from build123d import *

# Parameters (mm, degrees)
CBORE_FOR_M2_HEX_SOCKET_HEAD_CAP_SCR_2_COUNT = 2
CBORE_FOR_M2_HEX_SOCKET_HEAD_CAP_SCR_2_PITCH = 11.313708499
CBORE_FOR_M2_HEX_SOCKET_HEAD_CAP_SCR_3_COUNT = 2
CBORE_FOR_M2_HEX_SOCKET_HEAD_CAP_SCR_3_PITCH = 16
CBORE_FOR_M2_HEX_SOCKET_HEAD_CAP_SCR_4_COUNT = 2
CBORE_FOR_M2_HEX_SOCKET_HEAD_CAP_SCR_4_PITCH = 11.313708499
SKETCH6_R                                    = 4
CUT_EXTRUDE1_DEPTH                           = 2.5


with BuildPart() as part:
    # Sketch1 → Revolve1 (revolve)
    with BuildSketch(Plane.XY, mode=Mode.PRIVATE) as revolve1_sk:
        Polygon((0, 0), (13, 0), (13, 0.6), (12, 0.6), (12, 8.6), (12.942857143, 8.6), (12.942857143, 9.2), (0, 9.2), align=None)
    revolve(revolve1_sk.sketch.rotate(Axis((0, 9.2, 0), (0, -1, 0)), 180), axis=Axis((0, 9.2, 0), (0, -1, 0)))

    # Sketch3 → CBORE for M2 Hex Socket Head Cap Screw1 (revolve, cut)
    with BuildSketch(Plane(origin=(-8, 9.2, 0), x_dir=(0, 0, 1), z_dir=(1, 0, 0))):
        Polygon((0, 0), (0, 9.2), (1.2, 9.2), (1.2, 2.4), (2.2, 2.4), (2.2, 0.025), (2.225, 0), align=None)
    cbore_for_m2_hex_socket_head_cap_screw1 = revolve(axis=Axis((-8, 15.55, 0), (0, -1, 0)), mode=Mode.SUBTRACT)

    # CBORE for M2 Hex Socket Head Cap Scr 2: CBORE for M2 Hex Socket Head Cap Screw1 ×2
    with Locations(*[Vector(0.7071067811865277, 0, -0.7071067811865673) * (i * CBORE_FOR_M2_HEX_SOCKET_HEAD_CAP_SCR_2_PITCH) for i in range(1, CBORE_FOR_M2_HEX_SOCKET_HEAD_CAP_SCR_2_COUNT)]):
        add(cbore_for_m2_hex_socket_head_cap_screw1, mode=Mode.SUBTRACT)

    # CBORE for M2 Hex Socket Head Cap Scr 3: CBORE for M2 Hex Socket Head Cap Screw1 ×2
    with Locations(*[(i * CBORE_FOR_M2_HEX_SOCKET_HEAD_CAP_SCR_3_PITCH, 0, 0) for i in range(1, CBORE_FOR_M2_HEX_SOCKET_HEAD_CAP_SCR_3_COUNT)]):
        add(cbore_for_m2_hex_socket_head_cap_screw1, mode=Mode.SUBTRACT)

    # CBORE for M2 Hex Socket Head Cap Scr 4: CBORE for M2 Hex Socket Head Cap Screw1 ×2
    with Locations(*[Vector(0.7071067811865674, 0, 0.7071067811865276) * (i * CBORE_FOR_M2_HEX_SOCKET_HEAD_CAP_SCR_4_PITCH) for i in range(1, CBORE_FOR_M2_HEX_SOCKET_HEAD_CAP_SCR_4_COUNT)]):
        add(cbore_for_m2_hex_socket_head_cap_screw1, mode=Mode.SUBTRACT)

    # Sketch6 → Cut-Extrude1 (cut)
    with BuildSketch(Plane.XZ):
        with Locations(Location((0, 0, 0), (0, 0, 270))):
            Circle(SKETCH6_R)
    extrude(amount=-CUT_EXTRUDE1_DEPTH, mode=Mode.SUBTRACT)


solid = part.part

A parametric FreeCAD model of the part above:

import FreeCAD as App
import Part
import Sketcher

V = App.Vector
Q = App.Units.Quantity

doc = App.newDocument("Part")
body = doc.addObject("PartDesign::Body", "Body")

# Sketch on XY plane
sketch1 = body.newObject("Sketcher::SketchObject", "Sketch")
sketch1.AttachmentSupport = (doc.getObject("XY_Plane"), [""])
sketch1.MapMode = "FlatFace"
sketch1.addGeometry(Part.LineSegment(V(0, 0, 0), V(13, 0, 0)), False)
sketch1.addGeometry(Part.LineSegment(V(13, 0, 0), V(13, 0.6, 0)), False)
sketch1.addGeometry(Part.LineSegment(V(13, 0.6, 0), V(12, 0.6, 0)), False)
sketch1.addGeometry(Part.LineSegment(V(12, 0.6, 0), V(12, 8.6, 0)), False)
sketch1.addGeometry(Part.LineSegment(V(12, 8.6, 0), V(12.9, 8.6, 0)), False)
sketch1.addGeometry(Part.LineSegment(V(12.9, 8.6, 0), V(12.9, 9.2, 0)), False)
sketch1.addGeometry(Part.LineSegment(V(12.9, 9.2, 0), V(0, 9.2, 0)), False)
sketch1.addGeometry(Part.LineSegment(V(0, 9.2, 0), V(0, 0, 0)), False)
sketch1.addConstraint(Sketcher.Constraint("Coincident", 0, 2, 1, 1))
sketch1.addConstraint(Sketcher.Constraint("Coincident", 1, 2, 2, 1))
sketch1.addConstraint(Sketcher.Constraint("Coincident", 2, 2, 3, 1))
sketch1.addConstraint(Sketcher.Constraint("Coincident", 3, 2, 4, 1))
sketch1.addConstraint(Sketcher.Constraint("Coincident", 4, 2, 5, 1))
sketch1.addConstraint(Sketcher.Constraint("Coincident", 5, 2, 6, 1))
sketch1.addConstraint(Sketcher.Constraint("Coincident", 6, 2, 7, 1))
sketch1.addConstraint(Sketcher.Constraint("Coincident", 7, 2, 0, 1))
sketch1.addConstraint(Sketcher.Constraint("Horizontal", 0))
sketch1.addConstraint(Sketcher.Constraint("Vertical", 1))
sketch1.addConstraint(Sketcher.Constraint("Horizontal", 2))
sketch1.addConstraint(Sketcher.Constraint("Vertical", 3))
sketch1.addConstraint(Sketcher.Constraint("Horizontal", 4))
sketch1.addConstraint(Sketcher.Constraint("Vertical", 5))
sketch1.addConstraint(Sketcher.Constraint("Horizontal", 6))
sketch1.addConstraint(Sketcher.Constraint("Vertical", 7))
sketch1.addConstraint(Sketcher.Constraint("Coincident", 7, 2, -1, 1))
sketch1.addConstraint(Sketcher.Constraint("Equal", 1, 5))
sketch1.addConstraint(Sketcher.Constraint("DistanceX", 0, 1, 0, 2, 13.0))
sketch1.addConstraint(Sketcher.Constraint("DistanceX", 2, 2, 2, 1, 1.0))
sketch1.addConstraint(Sketcher.Constraint("DistanceY", 3, 1, 3, 2, 8.0))
sketch1.addConstraint(Sketcher.Constraint("DistanceY", 1, 1, 1, 2, 0.6))
sketch1.addConstraint(Sketcher.Constraint("DistanceX", 4, 1, 4, 2, 0.942857))
revolution = body.newObject("PartDesign::Revolution", "Revolution")
revolution.Profile = sketch1
revolution.ReferenceAxis = (sketch1, ["V_Axis"])
revolution.Angle = 360

# Sketch on YZ plane
sketch2 = body.newObject("Sketcher::SketchObject", "Sketch001")
sketch2.AttachmentSupport = (doc.getObject("YZ_Plane"), [""])
sketch2.MapMode = "FlatFace"
sketch2.AttachmentOffset = App.Placement(V(0, 0, -8), App.Rotation())
sketch2.addGeometry(Part.LineSegment(V(0, 0, 0), V(9.2, 0, 0)), False)
sketch2.addGeometry(Part.LineSegment(V(9.2, 0, 0), V(9.2, 2.225, 0)), False)
sketch2.addGeometry(Part.LineSegment(V(9.2, 2.225, 0), V(9.175, 2.2, 0)), False)
sketch2.addGeometry(Part.LineSegment(V(9.175, 2.2, 0), V(6.8, 2.2, 0)), False)
sketch2.addGeometry(Part.LineSegment(V(6.8, 2.2, 0), V(6.8, 1.2, 0)), False)
sketch2.addGeometry(Part.LineSegment(V(6.8, 1.2, 0), V(0, 1.2, 0)), False)
sketch2.addGeometry(Part.LineSegment(V(0, 1.2, 0), V(0, 0, 0)), False)
sketch2.addConstraint(Sketcher.Constraint("Coincident", 0, 2, 1, 1))
sketch2.addConstraint(Sketcher.Constraint("Coincident", 1, 2, 2, 1))
sketch2.addConstraint(Sketcher.Constraint("Coincident", 2, 2, 3, 1))
sketch2.addConstraint(Sketcher.Constraint("Coincident", 3, 2, 4, 1))
sketch2.addConstraint(Sketcher.Constraint("Coincident", 4, 2, 5, 1))
sketch2.addConstraint(Sketcher.Constraint("Coincident", 5, 2, 6, 1))
sketch2.addConstraint(Sketcher.Constraint("Coincident", 6, 2, 0, 1))
sketch2.addConstraint(Sketcher.Constraint("Horizontal", 0))
sketch2.addConstraint(Sketcher.Constraint("Vertical", 1))
sketch2.addConstraint(Sketcher.Constraint("Horizontal", 3))
sketch2.addConstraint(Sketcher.Constraint("Vertical", 4))
sketch2.addConstraint(Sketcher.Constraint("Horizontal", 5))
sketch2.addConstraint(Sketcher.Constraint("Vertical", 6))
sketch2.addConstraint(Sketcher.Constraint("Coincident", 6, 2, -1, 1))
sketch2.addConstraint(Sketcher.Constraint("DistanceY", 4, 2, 4, 1, 1.0))
sketch2.addConstraint(Sketcher.Constraint("Angle", 2, Q("-135 deg")))
sketch2.addConstraint(Sketcher.Constraint("DistanceX", 0, 1, 0, 2, 9.2))
sketch2.addConstraint(Sketcher.Constraint("DistanceX", 5, 2, 5, 1, 6.8))
sketch2.addConstraint(Sketcher.Constraint("DistanceY", 6, 2, 6, 1, 1.2))
sketch2.addConstraint(Sketcher.Constraint("DistanceX", 3, 2, 3, 1, 2.375))
groove = body.newObject("PartDesign::Groove", "Groove")
groove.Profile = sketch2
groove.ReferenceAxis = (sketch2, ["H_Axis"])
groove.Angle = 360
doc.recompute()

datumline = body.newObject("PartDesign::Line", "DatumLine")
datumline.Placement = App.Placement(V(0, 0, 0), App.Rotation(V(0, 0, 1), V(0.707106781, 0, -0.707106781)))
linearpattern = body.newObject("PartDesign::LinearPattern", "LinearPattern")
linearpattern.Originals = [groove]
linearpattern.Direction = (datumline, [""])
linearpattern.Mode = "offset"
linearpattern.Offset = 11.313708
linearpattern.Occurrences = 2
body.Tip = linearpattern
doc.recompute()

linearpattern2 = body.newObject("PartDesign::LinearPattern", "LinearPattern001")
linearpattern2.Originals = [groove]
linearpattern2.Direction = (doc.getObject("X_Axis"), [""])
linearpattern2.Mode = "offset"
linearpattern2.Offset = 16
linearpattern2.Occurrences = 2
body.Tip = linearpattern2
doc.recompute()

datumline2 = body.newObject("PartDesign::Line", "DatumLine001")
datumline2.Placement = App.Placement(V(0, 0, 0), App.Rotation(V(0, 0, 1), V(0.707106781, 0, 0.707106781)))
linearpattern3 = body.newObject("PartDesign::LinearPattern", "LinearPattern002")
linearpattern3.Originals = [groove]
linearpattern3.Direction = (datumline2, [""])
linearpattern3.Mode = "offset"
linearpattern3.Offset = 11.313708
linearpattern3.Occurrences = 2
body.Tip = linearpattern3

# Sketch on XZ plane
sketch3 = body.newObject("Sketcher::SketchObject", "Sketch002")
sketch3.AttachmentSupport = (doc.getObject("XZ_Plane"), [""])
sketch3.MapMode = "FlatFace"
sketch3.addGeometry(Part.Circle(V(0, 0, 0), V(0, 0, 1), 4), False)
sketch3.addConstraint(Sketcher.Constraint("Coincident", 0, 3, -1, 1))
sketch3.addConstraint(Sketcher.Constraint("Diameter", 0, 8.0))
pocket1 = body.newObject("PartDesign::Pocket", "Pocket")
pocket1.Profile = sketch3
pocket1.Length = 2.5

doc.recompute()
